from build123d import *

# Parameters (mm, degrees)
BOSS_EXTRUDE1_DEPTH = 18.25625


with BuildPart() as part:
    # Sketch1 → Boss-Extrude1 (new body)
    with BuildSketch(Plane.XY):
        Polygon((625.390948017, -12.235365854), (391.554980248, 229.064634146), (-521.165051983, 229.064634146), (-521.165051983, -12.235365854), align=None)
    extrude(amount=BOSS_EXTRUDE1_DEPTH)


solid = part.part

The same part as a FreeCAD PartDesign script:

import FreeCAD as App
import Part
import Sketcher

V = App.Vector
Q = App.Units.Quantity

doc = App.newDocument("Part")
body = doc.addObject("PartDesign::Body", "Body")

# Sketch on XY plane
sketch1 = doc.addObject("Sketcher::SketchObject", "Sketch")
body.addObject(sketch1)
sketch1.AttachmentSupport = (doc.XY_Plane, [""])
sketch1.MapMode = "FlatFace"
sketch1.addGeometry([
    Part.LineSegment(V(625, -12, 0), V(392, 229, 0)),
    Part.LineSegment(V(392, 229, 0), V(-521, 229, 0)),
    Part.LineSegment(V(-521, 229, 0), V(-521, -12, 0)),
    Part.LineSegment(V(-521, -12, 0), V(625, -12, 0)),
], False)
sketch1.addConstraint([
    Sketcher.Constraint("Coincident", 0, 2, 1, 1),
    Sketcher.Constraint("Coincident", 1, 2, 2, 1),
    Sketcher.Constraint("Coincident", 2, 2, 3, 1),
    Sketcher.Constraint("Coincident", 3, 2, 0, 1),
    Sketcher.Constraint("Horizontal", 1),
    Sketcher.Constraint("Vertical", 2),
    Sketcher.Constraint("Horizontal", 3),
    Sketcher.Constraint("DistanceY", 2, 2, 2, 1, Q("9.5 in")),
    Sketcher.Constraint("DistanceX", 3, 1, 3, 2, Q("45.14 in")),
    Sketcher.Constraint("Angle", 0, Q("134.1 deg")),
    Sketcher.Constraint("DistanceX", -1, 1, 0, 2, Q("391.55498 mm")),
    Sketcher.Constraint("DistanceY", -1, 1, 0, 2, Q("229.064634 mm")),
])
pad1 = doc.addObject("PartDesign::Pad", "Pad")
body.addObject(pad1)
pad1.Profile = sketch1
pad1.Length = Q("0.71875 in")

doc.recompute()
